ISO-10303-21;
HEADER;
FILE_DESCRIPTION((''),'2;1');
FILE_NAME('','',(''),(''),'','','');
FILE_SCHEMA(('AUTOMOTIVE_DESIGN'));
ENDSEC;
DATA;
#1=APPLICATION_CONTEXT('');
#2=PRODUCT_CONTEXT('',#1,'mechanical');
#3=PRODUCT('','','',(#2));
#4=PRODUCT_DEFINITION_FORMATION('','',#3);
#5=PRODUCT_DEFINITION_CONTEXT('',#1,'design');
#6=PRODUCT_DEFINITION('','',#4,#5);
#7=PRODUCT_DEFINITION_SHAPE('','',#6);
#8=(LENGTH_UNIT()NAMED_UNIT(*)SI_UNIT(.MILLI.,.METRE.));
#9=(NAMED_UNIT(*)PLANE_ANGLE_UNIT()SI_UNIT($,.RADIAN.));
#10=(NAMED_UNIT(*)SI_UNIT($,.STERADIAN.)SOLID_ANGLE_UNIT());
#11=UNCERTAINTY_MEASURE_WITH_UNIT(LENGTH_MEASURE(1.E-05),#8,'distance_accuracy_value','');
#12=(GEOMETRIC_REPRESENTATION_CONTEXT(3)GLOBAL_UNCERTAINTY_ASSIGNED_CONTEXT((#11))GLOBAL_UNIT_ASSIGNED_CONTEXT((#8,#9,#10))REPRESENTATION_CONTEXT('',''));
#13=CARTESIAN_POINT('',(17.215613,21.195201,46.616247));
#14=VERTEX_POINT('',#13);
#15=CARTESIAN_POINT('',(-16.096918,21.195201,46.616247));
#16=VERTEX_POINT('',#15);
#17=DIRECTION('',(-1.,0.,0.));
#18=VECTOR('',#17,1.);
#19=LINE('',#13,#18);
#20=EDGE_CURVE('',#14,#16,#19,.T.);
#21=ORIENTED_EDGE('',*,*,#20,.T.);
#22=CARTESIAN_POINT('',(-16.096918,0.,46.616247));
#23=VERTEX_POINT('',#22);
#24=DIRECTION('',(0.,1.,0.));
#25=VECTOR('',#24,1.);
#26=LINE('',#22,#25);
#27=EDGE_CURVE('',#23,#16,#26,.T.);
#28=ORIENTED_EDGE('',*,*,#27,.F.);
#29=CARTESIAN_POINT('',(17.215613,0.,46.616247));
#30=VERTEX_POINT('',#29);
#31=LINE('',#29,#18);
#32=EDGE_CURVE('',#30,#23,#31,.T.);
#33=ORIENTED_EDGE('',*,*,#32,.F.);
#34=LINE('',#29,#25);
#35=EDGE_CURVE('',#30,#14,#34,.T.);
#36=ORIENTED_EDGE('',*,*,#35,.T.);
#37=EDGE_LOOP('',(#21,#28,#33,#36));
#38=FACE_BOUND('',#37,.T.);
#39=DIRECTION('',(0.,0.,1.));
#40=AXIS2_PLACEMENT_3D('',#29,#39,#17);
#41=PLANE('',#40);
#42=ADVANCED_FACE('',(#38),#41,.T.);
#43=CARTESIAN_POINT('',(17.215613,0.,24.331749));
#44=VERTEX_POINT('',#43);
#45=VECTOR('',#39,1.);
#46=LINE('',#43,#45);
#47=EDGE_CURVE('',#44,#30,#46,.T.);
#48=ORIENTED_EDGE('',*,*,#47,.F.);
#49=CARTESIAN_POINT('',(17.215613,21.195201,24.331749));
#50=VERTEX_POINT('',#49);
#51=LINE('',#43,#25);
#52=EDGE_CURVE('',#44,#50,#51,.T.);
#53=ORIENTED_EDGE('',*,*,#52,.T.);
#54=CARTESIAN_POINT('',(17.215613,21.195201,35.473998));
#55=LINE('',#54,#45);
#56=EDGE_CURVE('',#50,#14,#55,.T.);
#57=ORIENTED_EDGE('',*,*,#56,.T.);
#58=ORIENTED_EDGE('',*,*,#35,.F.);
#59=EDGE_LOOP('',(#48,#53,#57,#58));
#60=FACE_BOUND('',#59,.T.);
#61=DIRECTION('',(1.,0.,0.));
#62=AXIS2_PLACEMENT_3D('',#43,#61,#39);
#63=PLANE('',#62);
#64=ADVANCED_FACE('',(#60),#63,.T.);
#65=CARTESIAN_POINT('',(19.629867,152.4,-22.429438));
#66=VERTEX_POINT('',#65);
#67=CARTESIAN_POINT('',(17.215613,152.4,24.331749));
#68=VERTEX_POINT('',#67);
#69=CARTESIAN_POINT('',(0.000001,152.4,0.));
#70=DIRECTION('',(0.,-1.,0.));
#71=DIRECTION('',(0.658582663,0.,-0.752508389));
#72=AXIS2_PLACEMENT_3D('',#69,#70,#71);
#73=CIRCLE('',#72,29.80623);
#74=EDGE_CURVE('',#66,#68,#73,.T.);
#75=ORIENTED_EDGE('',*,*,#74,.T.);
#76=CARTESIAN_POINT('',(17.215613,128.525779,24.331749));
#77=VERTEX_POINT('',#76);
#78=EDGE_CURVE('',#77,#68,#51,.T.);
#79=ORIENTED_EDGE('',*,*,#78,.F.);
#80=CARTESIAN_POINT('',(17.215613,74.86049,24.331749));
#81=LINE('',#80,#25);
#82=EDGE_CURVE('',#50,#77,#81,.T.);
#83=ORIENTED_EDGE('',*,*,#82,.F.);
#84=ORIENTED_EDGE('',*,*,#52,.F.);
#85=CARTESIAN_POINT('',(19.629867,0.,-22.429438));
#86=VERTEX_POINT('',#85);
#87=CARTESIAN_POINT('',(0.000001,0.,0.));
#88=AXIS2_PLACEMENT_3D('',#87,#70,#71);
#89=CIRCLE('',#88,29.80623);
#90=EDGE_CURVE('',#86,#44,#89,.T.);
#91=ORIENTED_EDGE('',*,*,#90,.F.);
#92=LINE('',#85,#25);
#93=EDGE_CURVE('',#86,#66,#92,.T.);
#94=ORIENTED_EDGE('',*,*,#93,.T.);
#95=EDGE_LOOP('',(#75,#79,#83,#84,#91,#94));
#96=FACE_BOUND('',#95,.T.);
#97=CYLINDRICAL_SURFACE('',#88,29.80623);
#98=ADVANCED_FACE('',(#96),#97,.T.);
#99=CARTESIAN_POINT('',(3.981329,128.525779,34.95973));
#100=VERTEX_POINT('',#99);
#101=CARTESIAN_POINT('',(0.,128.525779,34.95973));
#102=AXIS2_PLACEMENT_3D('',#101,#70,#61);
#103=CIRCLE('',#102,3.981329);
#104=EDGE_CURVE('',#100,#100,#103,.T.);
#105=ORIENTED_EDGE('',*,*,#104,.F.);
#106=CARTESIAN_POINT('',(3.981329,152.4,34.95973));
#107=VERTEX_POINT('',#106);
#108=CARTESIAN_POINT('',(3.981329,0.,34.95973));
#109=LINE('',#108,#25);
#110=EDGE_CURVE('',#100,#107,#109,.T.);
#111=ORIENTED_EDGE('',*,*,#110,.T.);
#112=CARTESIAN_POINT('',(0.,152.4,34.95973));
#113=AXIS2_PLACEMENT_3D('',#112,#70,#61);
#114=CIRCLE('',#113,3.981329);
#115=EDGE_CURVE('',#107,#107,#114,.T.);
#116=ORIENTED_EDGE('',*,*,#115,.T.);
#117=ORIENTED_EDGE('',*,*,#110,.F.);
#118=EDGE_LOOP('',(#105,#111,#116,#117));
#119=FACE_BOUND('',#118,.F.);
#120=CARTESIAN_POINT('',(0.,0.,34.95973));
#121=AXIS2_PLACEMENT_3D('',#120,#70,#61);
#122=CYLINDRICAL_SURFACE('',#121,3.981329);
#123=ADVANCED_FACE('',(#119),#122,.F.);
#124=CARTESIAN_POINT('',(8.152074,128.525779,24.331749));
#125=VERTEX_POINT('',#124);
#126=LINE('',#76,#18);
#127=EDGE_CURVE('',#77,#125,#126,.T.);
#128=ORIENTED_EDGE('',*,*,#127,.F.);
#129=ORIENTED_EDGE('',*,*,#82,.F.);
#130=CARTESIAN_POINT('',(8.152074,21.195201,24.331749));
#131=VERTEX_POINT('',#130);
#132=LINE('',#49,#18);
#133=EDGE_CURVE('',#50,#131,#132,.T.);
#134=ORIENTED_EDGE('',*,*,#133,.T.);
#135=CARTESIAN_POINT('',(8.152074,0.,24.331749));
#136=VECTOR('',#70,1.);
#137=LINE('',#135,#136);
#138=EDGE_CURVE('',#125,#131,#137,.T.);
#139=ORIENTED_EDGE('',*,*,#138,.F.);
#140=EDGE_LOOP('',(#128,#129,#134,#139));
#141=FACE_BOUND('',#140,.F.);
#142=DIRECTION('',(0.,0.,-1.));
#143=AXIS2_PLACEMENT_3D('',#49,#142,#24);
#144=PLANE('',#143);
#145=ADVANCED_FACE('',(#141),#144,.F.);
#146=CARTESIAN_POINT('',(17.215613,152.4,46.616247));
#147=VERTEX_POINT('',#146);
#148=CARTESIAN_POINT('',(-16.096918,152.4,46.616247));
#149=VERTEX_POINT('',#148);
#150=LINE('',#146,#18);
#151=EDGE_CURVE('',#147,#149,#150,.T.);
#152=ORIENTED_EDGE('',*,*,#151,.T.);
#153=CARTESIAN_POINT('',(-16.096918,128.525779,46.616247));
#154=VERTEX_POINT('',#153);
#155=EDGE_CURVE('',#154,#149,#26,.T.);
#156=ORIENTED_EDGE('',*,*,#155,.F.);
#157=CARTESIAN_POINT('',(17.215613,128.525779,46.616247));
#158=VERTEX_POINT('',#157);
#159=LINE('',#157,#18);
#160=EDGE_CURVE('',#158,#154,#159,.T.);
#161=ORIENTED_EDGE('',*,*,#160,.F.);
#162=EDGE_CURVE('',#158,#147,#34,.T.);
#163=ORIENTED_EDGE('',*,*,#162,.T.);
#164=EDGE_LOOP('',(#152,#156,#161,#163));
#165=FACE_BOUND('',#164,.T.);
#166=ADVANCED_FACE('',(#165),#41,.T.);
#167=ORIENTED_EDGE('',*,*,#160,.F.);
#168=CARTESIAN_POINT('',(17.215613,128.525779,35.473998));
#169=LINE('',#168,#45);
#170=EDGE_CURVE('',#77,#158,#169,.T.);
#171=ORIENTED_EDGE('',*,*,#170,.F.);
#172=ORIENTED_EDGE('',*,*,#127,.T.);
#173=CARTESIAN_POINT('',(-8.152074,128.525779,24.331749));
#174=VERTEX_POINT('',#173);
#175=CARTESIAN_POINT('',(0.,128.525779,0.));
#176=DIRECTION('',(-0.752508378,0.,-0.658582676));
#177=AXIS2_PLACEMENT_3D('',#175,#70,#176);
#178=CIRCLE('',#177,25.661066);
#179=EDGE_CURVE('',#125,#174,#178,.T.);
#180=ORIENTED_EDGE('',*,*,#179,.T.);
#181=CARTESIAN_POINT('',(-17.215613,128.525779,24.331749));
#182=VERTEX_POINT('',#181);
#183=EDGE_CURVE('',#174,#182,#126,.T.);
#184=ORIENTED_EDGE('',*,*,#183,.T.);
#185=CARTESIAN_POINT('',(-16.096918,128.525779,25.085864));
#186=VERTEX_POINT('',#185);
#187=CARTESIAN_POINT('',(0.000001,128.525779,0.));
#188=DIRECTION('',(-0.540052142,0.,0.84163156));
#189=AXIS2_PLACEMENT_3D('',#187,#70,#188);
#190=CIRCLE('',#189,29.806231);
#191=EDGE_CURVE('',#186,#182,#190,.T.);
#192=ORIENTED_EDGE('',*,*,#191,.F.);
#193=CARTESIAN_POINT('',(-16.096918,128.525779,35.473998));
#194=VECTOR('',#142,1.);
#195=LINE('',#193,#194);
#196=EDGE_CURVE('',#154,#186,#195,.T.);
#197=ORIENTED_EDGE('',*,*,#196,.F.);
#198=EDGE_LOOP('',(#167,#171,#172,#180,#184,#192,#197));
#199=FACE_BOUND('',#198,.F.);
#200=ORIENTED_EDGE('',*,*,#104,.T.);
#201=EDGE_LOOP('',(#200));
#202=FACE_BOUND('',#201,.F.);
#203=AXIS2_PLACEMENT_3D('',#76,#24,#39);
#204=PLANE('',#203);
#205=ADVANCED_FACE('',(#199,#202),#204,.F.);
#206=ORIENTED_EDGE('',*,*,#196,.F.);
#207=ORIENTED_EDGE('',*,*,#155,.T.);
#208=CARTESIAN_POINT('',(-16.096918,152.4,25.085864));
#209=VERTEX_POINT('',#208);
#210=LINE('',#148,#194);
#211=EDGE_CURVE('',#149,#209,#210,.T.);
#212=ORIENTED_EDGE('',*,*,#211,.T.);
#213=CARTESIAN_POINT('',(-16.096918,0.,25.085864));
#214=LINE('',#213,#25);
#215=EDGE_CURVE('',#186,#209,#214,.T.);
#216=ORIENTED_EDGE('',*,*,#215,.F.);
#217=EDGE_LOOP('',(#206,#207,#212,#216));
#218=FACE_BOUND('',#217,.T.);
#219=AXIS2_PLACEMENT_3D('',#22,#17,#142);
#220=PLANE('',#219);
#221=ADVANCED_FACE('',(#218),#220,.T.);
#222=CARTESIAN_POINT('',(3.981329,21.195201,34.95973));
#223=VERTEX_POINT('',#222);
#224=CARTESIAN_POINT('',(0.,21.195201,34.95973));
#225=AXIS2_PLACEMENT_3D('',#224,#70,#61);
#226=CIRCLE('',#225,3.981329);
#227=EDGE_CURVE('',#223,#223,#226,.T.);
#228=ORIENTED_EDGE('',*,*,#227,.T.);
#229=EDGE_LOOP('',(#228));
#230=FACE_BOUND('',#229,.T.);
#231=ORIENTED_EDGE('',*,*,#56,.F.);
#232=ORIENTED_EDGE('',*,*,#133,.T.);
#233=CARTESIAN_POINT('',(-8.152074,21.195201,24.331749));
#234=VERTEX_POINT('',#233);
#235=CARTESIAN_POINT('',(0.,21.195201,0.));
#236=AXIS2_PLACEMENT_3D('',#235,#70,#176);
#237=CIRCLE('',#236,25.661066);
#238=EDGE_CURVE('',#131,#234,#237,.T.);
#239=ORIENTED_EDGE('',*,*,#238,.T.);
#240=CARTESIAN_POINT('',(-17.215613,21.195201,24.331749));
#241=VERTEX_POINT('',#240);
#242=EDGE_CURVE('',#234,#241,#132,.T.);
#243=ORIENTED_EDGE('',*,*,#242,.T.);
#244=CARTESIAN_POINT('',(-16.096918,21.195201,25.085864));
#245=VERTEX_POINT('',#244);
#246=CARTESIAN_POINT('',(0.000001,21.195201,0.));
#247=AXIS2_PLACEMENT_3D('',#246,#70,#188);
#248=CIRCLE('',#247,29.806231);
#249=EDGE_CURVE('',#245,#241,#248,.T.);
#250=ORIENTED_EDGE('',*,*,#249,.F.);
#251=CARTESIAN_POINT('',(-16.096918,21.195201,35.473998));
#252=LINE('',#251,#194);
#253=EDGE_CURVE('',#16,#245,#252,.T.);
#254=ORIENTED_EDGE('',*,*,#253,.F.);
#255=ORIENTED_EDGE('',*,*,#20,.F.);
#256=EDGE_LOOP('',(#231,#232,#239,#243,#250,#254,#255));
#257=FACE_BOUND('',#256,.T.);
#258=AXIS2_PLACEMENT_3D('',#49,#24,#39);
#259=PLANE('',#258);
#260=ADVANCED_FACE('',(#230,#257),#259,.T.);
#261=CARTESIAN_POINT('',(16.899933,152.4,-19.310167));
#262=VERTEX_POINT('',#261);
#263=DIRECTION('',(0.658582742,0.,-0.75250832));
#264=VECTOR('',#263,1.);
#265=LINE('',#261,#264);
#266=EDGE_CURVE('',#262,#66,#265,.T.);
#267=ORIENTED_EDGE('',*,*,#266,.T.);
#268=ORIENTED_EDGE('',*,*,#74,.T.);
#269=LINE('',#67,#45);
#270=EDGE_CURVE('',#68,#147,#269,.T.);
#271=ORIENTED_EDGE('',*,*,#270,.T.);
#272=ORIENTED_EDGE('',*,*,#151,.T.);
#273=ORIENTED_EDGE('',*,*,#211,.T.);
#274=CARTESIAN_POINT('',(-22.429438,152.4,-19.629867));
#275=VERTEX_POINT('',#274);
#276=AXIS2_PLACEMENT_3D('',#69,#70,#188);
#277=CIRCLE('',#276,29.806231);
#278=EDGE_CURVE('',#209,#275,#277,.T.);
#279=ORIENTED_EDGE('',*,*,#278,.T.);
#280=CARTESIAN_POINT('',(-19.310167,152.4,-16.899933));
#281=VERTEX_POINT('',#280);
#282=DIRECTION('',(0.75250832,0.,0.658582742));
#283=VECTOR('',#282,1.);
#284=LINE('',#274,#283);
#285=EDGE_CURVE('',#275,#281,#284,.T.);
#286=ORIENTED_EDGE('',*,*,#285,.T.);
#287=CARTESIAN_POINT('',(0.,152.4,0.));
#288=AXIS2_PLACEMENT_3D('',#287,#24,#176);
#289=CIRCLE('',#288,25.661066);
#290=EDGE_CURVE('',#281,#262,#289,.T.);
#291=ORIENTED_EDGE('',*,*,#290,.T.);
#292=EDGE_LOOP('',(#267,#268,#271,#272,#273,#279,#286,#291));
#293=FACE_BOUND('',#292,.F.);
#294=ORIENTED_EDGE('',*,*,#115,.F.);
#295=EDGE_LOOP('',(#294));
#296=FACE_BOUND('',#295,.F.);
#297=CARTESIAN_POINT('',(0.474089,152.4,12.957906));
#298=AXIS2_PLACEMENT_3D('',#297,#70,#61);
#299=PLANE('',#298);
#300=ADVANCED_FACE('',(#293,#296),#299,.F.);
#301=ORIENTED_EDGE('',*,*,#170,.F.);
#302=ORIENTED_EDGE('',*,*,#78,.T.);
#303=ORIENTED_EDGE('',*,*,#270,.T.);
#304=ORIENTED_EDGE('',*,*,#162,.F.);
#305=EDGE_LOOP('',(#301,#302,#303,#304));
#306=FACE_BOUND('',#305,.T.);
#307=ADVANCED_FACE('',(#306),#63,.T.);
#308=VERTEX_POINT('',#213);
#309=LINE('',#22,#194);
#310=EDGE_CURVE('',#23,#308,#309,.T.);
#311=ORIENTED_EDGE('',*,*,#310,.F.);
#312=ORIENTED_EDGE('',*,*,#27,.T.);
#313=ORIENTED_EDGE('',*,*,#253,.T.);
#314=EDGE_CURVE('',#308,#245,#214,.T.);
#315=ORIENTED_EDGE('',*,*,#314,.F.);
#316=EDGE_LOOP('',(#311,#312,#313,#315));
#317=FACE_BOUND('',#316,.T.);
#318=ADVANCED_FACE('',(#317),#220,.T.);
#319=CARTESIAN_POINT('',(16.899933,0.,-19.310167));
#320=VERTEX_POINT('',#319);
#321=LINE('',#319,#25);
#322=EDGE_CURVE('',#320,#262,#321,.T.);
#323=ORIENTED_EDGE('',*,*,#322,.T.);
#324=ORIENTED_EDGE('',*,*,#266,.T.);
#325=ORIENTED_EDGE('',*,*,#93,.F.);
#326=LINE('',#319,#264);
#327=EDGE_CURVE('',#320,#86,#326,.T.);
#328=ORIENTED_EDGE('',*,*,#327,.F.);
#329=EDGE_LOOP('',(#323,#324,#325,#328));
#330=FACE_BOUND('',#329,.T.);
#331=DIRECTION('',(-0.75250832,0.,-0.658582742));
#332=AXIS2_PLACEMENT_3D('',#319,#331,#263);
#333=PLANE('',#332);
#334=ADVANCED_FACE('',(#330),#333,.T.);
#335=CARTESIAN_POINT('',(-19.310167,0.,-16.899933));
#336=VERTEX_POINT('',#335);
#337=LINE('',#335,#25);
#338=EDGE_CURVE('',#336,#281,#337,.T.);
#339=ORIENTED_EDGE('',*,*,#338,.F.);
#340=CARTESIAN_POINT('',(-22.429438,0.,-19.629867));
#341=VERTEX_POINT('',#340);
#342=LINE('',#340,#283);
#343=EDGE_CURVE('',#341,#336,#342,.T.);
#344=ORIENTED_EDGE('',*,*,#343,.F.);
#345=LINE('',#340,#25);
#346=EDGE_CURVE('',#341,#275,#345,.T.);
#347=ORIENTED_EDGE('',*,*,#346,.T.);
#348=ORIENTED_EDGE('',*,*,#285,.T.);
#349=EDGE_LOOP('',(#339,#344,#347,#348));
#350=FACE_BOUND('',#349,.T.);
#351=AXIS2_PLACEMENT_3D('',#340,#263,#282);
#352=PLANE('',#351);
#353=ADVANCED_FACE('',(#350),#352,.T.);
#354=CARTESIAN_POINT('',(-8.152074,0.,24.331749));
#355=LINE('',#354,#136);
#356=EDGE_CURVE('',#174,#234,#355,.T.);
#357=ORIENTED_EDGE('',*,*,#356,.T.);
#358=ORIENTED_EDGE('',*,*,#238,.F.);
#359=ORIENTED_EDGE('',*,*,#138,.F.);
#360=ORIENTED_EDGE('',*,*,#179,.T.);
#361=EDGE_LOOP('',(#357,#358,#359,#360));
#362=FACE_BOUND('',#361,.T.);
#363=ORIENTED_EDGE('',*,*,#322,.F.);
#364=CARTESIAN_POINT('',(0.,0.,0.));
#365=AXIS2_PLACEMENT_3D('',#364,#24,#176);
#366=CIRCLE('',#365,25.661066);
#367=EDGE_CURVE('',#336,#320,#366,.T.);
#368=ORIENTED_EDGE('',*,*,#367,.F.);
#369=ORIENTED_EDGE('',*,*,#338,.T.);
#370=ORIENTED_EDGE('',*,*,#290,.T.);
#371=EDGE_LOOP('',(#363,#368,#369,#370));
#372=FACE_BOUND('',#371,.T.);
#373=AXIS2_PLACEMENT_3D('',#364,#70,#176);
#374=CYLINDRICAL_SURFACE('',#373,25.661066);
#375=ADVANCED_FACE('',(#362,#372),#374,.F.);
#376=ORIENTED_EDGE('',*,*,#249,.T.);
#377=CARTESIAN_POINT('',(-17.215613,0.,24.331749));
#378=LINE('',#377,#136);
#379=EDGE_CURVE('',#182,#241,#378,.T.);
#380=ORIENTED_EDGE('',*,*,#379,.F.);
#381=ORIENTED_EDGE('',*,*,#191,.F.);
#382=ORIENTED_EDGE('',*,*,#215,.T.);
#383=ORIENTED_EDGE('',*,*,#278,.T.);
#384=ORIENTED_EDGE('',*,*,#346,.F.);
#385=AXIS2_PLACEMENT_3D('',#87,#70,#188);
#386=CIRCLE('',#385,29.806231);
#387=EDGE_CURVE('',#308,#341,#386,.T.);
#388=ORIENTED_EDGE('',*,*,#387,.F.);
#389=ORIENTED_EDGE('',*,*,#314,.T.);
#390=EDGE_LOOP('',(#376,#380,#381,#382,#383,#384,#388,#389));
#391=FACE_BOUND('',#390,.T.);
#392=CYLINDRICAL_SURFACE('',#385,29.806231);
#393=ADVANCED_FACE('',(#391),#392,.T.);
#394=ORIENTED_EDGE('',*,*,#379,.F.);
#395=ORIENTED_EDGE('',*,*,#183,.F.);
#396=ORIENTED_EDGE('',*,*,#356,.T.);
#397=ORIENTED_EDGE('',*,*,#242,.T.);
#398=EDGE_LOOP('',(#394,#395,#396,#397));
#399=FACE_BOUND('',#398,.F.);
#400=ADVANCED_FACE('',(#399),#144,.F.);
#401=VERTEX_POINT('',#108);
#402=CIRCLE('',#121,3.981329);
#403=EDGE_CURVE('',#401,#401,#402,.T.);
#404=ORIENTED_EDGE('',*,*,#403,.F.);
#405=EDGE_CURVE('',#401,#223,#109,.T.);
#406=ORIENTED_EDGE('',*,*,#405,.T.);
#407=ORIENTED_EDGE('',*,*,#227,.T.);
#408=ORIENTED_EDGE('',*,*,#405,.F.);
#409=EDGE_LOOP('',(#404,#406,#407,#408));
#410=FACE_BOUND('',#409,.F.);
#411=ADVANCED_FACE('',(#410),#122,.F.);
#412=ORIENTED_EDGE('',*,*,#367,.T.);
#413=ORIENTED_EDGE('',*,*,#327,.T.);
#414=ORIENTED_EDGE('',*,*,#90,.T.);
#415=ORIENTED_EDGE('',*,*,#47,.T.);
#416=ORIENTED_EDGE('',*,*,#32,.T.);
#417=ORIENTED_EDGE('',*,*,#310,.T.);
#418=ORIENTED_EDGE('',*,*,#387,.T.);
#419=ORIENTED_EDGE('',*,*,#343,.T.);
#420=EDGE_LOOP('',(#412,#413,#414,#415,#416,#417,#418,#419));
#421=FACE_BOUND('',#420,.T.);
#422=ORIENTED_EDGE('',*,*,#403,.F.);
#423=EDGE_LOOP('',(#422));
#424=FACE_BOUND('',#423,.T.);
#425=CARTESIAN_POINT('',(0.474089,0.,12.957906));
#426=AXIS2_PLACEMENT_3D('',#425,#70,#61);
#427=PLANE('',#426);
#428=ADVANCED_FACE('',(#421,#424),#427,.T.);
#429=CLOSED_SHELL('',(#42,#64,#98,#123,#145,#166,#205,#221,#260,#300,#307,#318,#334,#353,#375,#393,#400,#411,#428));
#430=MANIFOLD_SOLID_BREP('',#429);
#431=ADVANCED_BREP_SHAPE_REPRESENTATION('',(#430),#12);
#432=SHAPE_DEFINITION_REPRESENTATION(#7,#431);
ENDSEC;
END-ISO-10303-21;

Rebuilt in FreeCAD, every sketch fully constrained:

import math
import FreeCAD as App
import Part
import Sketcher
Q = App.Units.Quantity

doc = App.newDocument("Part")
body = doc.addObject("PartDesign::Body", "Body")

sketch1 = body.newObject("Sketcher::SketchObject", "Sketch")
sketch1.AttachmentSupport = (doc.getObject("XZ_Plane"), [""])
sketch1.MapMode = "FlatFace"
sketch1.addGeometry(Part.ArcOfCircle(Part.Circle(App.Vector(0, 0, 0), App.Vector(0, 0, 1), 25.7), math.radians(-49), math.radians(221)), False)
sketch1.addGeometry(Part.LineSegment(App.Vector(16.9, -19.3, 0), App.Vector(19.6, -22.4, 0)), False)
sketch1.addGeometry(Part.ArcOfCircle(Part.Circle(App.Vector(0, 0, 0), App.Vector(0, 0, 1), 29.8), math.radians(-49), math.radians(55)), False)
sketch1.addGeometry(Part.LineSegment(App.Vector(17.2, 24.3, 0), App.Vector(17.2, 46.6, 0)), False)
sketch1.addGeometry(Part.LineSegment(App.Vector(17.2, 46.6, 0), App.Vector(-16.1, 46.6, 0)), False)
sketch1.addGeometry(Part.LineSegment(App.Vector(-16.1, 46.6, 0), App.Vector(-16.1, 25.1, 0)), False)
sketch1.addGeometry(Part.ArcOfCircle(Part.Circle(App.Vector(0, 0, 0), App.Vector(0, 0, 1), 29.8), math.radians(123), math.radians(221)), False)
sketch1.addGeometry(Part.LineSegment(App.Vector(-22.4, -19.6, 0), App.Vector(-19.3, -16.9, 0)), False)
sketch1.addGeometry(Part.Circle(App.Vector(0, 35, 0), App.Vector(0, 0, 1), 4), False)
sketch1.addConstraint(Sketcher.Constraint("Coincident", 0, 1, 1, 1))
sketch1.addConstraint(Sketcher.Constraint("Coincident", 1, 2, 2, 1))
sketch1.addConstraint(Sketcher.Constraint("Coincident", 2, 2, 3, 1))
sketch1.addConstraint(Sketcher.Constraint("Coincident", 3, 2, 4, 1))
sketch1.addConstraint(Sketcher.Constraint("Coincident", 4, 2, 5, 1))
sketch1.addConstraint(Sketcher.Constraint("Coincident", 5, 2, 6, 1))
sketch1.addConstraint(Sketcher.Constraint("Coincident", 6, 2, 7, 1))
sketch1.addConstraint(Sketcher.Constraint("Coincident", 7, 2, 0, 2))
sketch1.addConstraint(Sketcher.Constraint("Vertical", 3))
sketch1.addConstraint(Sketcher.Constraint("Horizontal", 4))
sketch1.addConstraint(Sketcher.Constraint("Vertical", 5))
sketch1.addConstraint(Sketcher.Constraint("Coincident", 0, 3, -1, 1))
sketch1.addConstraint(Sketcher.Constraint("Coincident", 2, 3, -1, 1))
sketch1.addConstraint(Sketcher.Constraint("Coincident", 6, 3, -1, 1))
sketch1.addConstraint(Sketcher.Constraint("Equal", 2, 6))
sketch1.addConstraint(Sketcher.Constraint("PointOnObject", 8, 3, -2))
sketch1.addConstraint(Sketcher.Constraint("Perpendicular", 1, 7))
sketch1.addConstraint(Sketcher.Constraint("Diameter", 8, 7.962658))
sketch1.addConstraint(Sketcher.Constraint("Radius", 2, 29.80623))
sketch1.addConstraint(Sketcher.Constraint("DistanceY", 3, 1, 3, 2, 22.284498))
sketch1.addConstraint(Sketcher.Constraint("Radius", 0, 25.661066))
sketch1.addConstraint(Sketcher.Constraint("DistanceX", 4, 2, 4, 1, 33.312531))
sketch1.addConstraint(Sketcher.Constraint("DistanceY", 6, 2, 0, 1, 0.3197))
sketch1.addConstraint(Sketcher.Constraint("DistanceX", 7, 2, 0, 1, 36.2101))
sketch1.addConstraint(Sketcher.Constraint("DistanceY", 5, 2, 5, 1, 21.530383))
sketch1.addConstraint(Sketcher.Constraint("DistanceY", -1, 1, 8, 3, 34.95973))
sketch1.addConstraint(Sketcher.Constraint("DistanceY", 1, 2, -1, 1, 22.429438))
pad1 = body.newObject("PartDesign::Pad", "Pad")
pad1.Profile = sketch1
pad1.Length = Q("6 in")
pad1.Reversed = True

sketch2 = body.newObject("Sketcher::SketchObject", "Sketch001")
sketch2.AttachmentSupport = (doc.getObject("YZ_Plane"), [""])
sketch2.MapMode = "FlatFace"
sketch2.AttachmentOffset = App.Placement(App.Vector(0, 0, 17.215613), App.Rotation())
sketch2.addGeometry(Part.LineSegment(App.Vector(21, 47, 0), App.Vector(21, 24, 0)), False)
sketch2.addGeometry(Part.LineSegment(App.Vector(21, 24, 0), App.Vector(129, 24, 0)), False)
sketch2.addGeometry(Part.LineSegment(App.Vector(129, 24, 0), App.Vector(129, 47, 0)), False)
sketch2.addGeometry(Part.LineSegment(App.Vector(129, 47, 0), App.Vector(21, 47, 0)), False)
sketch2.addConstraint(Sketcher.Constraint("Coincident", 0, 2, 1, 1))
sketch2.addConstraint(Sketcher.Constraint("Coincident", 1, 2, 2, 1))
sketch2.addConstraint(Sketcher.Constraint("Coincident", 2, 2, 3, 1))
sketch2.addConstraint(Sketcher.Constraint("Coincident", 3, 2, 0, 1))
sketch2.addConstraint(Sketcher.Constraint("Vertical", 0))
sketch2.addConstraint(Sketcher.Constraint("Horizontal", 1))
sketch2.addConstraint(Sketcher.Constraint("Vertical", 2))
sketch2.addConstraint(Sketcher.Constraint("Horizontal", 3))
sketch2.addConstraint(Sketcher.Constraint("DistanceY", 0, 2, 0, 1, 22.284498))
sketch2.addConstraint(Sketcher.Constraint("DistanceX", 1, 1, 1, 2, 107.330578))
sketch2.addConstraint(Sketcher.Constraint("DistanceX", -1, 1, 0, 2, 21.195201))
sketch2.addConstraint(Sketcher.Constraint("DistanceY", -1, 1, 0, 2, 24.331749))
pocket1 = body.newObject("PartDesign::Pocket", "Pocket")
pocket1.Profile = sketch2
pocket1.Type = "ThroughAll"

doc.recompute()
